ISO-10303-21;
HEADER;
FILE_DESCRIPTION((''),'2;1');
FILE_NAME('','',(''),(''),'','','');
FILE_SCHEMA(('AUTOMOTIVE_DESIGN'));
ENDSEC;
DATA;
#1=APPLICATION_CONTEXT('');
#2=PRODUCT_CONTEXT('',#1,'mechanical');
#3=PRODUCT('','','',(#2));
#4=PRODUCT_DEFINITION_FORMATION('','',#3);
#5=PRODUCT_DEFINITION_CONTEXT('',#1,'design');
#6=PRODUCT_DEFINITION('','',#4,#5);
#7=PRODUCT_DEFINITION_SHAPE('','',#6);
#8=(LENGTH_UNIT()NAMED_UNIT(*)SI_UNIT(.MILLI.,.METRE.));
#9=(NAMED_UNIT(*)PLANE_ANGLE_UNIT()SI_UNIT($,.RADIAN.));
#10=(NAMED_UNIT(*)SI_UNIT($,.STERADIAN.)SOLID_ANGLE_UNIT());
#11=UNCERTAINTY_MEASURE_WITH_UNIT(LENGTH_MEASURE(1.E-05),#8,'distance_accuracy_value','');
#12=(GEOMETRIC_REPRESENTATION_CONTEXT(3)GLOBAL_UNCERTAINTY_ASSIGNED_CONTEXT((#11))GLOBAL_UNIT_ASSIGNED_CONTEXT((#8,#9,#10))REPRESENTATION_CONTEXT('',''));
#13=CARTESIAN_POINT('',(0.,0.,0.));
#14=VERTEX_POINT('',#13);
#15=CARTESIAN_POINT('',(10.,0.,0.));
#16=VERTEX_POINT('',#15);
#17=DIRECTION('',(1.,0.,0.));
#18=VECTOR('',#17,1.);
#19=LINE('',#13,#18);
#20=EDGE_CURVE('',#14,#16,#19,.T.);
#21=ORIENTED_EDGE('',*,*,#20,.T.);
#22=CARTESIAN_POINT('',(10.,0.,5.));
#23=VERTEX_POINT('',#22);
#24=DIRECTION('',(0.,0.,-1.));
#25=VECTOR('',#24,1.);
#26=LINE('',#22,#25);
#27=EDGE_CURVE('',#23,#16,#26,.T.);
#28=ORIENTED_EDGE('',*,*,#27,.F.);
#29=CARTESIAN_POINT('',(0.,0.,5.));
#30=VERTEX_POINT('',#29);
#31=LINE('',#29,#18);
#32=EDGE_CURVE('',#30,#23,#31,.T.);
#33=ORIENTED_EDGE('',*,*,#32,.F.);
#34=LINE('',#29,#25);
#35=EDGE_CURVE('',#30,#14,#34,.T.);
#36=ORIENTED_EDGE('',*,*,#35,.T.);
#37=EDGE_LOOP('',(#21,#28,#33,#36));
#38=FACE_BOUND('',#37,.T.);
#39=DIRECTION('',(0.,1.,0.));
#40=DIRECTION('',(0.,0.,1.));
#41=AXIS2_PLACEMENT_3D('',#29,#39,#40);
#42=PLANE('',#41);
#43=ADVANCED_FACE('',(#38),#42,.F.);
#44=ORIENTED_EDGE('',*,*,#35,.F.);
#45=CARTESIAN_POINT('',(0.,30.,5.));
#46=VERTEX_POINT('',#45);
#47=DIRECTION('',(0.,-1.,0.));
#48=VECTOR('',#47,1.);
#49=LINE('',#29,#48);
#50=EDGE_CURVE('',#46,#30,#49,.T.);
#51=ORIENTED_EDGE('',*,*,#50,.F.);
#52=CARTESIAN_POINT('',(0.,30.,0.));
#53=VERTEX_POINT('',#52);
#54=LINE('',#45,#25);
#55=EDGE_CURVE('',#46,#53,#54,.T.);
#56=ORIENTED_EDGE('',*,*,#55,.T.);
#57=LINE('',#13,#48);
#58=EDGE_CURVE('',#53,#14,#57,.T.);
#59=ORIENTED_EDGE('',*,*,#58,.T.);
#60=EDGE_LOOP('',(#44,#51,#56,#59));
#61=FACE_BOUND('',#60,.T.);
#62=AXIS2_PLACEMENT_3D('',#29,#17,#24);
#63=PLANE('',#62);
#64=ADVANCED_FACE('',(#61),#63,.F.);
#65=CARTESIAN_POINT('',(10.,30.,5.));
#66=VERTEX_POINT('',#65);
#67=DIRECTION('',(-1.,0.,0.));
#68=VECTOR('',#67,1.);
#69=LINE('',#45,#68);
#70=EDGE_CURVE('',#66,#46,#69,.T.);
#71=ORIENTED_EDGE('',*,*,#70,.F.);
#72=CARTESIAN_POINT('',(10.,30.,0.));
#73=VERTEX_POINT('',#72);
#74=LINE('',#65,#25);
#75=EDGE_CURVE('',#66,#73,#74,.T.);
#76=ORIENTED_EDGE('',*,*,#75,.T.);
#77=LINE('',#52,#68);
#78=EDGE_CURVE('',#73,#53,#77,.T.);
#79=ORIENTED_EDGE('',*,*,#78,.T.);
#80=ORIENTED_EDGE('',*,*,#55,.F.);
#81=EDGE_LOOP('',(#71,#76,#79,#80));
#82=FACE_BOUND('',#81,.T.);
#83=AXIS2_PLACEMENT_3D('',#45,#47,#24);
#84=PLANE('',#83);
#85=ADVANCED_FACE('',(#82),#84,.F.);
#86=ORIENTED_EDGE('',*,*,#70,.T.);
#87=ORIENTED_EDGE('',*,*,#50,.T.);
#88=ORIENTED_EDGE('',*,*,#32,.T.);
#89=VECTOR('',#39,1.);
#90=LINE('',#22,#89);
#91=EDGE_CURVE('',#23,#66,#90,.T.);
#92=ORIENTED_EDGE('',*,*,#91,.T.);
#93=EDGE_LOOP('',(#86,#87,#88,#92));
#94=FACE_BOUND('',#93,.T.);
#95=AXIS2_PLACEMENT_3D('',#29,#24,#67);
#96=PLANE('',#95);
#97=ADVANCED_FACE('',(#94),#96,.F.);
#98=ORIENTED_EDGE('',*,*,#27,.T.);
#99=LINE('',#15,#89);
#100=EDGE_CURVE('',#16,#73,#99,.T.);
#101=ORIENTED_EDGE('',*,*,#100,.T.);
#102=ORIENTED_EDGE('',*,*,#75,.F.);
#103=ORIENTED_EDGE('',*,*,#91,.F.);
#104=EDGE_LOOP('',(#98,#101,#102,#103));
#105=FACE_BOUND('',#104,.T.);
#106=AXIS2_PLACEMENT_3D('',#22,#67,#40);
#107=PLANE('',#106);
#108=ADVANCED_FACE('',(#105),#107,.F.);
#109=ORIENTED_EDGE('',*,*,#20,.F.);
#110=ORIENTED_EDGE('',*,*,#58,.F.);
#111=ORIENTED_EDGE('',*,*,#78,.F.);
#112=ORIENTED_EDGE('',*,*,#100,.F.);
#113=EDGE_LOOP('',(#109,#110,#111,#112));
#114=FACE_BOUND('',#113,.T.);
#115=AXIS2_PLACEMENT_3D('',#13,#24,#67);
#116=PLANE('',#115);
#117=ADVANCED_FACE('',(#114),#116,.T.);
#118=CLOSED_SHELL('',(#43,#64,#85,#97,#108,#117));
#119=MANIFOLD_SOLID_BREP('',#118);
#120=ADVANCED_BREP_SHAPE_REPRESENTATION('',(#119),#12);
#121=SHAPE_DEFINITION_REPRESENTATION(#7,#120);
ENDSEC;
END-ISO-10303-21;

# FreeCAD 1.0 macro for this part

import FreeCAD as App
import Part
import Sketcher
from FreeCAD import Vector

doc = App.newDocument("Part")
body = doc.addObject("PartDesign::Body", "Body")

# Sketch on XY plane
sketch1 = body.newObject("Sketcher::SketchObject", "Sketch")
sketch1.AttachmentSupport = (doc.getObject("XY_Plane"), [""])
sketch1.MapMode = "FlatFace"
sketch1.addGeometry(Part.LineSegment(Vector(0, 30, 0), Vector(0, 0, 0)), False)
sketch1.addGeometry(Part.LineSegment(Vector(0, 0, 0), Vector(10, 0, 0)), False)
sketch1.addGeometry(Part.LineSegment(Vector(10, 0, 0), Vector(10, 30, 0)), False)
sketch1.addGeometry(Part.LineSegment(Vector(10, 30, 0), Vector(0, 30, 0)), False)
sketch1.addConstraint(Sketcher.Constraint("Coincident", 0, 2, 1, 1))
sketch1.addConstraint(Sketcher.Constraint("Coincident", 1, 2, 2, 1))
sketch1.addConstraint(Sketcher.Constraint("Coincident", 2, 2, 3, 1))
sketch1.addConstraint(Sketcher.Constraint("Coincident", 3, 2, 0, 1))
sketch1.addConstraint(Sketcher.Constraint("Vertical", 0))
sketch1.addConstraint(Sketcher.Constraint("Horizontal", 1))
sketch1.addConstraint(Sketcher.Constraint("Vertical", 2))
sketch1.addConstraint(Sketcher.Constraint("Horizontal", 3))
sketch1.addConstraint(Sketcher.Constraint("Coincident", 0, 2, -1, 1))
sketch1.addConstraint(Sketcher.Constraint("DistanceX", 1, 1, 1, 2, 10.0))
sketch1.addConstraint(Sketcher.Constraint("DistanceY", 0, 2, 0, 1, 30.0))
pad1 = body.newObject("PartDesign::Pad", "Pad")
pad1.Profile = sketch1
pad1.Length = 5

doc.recompute()
